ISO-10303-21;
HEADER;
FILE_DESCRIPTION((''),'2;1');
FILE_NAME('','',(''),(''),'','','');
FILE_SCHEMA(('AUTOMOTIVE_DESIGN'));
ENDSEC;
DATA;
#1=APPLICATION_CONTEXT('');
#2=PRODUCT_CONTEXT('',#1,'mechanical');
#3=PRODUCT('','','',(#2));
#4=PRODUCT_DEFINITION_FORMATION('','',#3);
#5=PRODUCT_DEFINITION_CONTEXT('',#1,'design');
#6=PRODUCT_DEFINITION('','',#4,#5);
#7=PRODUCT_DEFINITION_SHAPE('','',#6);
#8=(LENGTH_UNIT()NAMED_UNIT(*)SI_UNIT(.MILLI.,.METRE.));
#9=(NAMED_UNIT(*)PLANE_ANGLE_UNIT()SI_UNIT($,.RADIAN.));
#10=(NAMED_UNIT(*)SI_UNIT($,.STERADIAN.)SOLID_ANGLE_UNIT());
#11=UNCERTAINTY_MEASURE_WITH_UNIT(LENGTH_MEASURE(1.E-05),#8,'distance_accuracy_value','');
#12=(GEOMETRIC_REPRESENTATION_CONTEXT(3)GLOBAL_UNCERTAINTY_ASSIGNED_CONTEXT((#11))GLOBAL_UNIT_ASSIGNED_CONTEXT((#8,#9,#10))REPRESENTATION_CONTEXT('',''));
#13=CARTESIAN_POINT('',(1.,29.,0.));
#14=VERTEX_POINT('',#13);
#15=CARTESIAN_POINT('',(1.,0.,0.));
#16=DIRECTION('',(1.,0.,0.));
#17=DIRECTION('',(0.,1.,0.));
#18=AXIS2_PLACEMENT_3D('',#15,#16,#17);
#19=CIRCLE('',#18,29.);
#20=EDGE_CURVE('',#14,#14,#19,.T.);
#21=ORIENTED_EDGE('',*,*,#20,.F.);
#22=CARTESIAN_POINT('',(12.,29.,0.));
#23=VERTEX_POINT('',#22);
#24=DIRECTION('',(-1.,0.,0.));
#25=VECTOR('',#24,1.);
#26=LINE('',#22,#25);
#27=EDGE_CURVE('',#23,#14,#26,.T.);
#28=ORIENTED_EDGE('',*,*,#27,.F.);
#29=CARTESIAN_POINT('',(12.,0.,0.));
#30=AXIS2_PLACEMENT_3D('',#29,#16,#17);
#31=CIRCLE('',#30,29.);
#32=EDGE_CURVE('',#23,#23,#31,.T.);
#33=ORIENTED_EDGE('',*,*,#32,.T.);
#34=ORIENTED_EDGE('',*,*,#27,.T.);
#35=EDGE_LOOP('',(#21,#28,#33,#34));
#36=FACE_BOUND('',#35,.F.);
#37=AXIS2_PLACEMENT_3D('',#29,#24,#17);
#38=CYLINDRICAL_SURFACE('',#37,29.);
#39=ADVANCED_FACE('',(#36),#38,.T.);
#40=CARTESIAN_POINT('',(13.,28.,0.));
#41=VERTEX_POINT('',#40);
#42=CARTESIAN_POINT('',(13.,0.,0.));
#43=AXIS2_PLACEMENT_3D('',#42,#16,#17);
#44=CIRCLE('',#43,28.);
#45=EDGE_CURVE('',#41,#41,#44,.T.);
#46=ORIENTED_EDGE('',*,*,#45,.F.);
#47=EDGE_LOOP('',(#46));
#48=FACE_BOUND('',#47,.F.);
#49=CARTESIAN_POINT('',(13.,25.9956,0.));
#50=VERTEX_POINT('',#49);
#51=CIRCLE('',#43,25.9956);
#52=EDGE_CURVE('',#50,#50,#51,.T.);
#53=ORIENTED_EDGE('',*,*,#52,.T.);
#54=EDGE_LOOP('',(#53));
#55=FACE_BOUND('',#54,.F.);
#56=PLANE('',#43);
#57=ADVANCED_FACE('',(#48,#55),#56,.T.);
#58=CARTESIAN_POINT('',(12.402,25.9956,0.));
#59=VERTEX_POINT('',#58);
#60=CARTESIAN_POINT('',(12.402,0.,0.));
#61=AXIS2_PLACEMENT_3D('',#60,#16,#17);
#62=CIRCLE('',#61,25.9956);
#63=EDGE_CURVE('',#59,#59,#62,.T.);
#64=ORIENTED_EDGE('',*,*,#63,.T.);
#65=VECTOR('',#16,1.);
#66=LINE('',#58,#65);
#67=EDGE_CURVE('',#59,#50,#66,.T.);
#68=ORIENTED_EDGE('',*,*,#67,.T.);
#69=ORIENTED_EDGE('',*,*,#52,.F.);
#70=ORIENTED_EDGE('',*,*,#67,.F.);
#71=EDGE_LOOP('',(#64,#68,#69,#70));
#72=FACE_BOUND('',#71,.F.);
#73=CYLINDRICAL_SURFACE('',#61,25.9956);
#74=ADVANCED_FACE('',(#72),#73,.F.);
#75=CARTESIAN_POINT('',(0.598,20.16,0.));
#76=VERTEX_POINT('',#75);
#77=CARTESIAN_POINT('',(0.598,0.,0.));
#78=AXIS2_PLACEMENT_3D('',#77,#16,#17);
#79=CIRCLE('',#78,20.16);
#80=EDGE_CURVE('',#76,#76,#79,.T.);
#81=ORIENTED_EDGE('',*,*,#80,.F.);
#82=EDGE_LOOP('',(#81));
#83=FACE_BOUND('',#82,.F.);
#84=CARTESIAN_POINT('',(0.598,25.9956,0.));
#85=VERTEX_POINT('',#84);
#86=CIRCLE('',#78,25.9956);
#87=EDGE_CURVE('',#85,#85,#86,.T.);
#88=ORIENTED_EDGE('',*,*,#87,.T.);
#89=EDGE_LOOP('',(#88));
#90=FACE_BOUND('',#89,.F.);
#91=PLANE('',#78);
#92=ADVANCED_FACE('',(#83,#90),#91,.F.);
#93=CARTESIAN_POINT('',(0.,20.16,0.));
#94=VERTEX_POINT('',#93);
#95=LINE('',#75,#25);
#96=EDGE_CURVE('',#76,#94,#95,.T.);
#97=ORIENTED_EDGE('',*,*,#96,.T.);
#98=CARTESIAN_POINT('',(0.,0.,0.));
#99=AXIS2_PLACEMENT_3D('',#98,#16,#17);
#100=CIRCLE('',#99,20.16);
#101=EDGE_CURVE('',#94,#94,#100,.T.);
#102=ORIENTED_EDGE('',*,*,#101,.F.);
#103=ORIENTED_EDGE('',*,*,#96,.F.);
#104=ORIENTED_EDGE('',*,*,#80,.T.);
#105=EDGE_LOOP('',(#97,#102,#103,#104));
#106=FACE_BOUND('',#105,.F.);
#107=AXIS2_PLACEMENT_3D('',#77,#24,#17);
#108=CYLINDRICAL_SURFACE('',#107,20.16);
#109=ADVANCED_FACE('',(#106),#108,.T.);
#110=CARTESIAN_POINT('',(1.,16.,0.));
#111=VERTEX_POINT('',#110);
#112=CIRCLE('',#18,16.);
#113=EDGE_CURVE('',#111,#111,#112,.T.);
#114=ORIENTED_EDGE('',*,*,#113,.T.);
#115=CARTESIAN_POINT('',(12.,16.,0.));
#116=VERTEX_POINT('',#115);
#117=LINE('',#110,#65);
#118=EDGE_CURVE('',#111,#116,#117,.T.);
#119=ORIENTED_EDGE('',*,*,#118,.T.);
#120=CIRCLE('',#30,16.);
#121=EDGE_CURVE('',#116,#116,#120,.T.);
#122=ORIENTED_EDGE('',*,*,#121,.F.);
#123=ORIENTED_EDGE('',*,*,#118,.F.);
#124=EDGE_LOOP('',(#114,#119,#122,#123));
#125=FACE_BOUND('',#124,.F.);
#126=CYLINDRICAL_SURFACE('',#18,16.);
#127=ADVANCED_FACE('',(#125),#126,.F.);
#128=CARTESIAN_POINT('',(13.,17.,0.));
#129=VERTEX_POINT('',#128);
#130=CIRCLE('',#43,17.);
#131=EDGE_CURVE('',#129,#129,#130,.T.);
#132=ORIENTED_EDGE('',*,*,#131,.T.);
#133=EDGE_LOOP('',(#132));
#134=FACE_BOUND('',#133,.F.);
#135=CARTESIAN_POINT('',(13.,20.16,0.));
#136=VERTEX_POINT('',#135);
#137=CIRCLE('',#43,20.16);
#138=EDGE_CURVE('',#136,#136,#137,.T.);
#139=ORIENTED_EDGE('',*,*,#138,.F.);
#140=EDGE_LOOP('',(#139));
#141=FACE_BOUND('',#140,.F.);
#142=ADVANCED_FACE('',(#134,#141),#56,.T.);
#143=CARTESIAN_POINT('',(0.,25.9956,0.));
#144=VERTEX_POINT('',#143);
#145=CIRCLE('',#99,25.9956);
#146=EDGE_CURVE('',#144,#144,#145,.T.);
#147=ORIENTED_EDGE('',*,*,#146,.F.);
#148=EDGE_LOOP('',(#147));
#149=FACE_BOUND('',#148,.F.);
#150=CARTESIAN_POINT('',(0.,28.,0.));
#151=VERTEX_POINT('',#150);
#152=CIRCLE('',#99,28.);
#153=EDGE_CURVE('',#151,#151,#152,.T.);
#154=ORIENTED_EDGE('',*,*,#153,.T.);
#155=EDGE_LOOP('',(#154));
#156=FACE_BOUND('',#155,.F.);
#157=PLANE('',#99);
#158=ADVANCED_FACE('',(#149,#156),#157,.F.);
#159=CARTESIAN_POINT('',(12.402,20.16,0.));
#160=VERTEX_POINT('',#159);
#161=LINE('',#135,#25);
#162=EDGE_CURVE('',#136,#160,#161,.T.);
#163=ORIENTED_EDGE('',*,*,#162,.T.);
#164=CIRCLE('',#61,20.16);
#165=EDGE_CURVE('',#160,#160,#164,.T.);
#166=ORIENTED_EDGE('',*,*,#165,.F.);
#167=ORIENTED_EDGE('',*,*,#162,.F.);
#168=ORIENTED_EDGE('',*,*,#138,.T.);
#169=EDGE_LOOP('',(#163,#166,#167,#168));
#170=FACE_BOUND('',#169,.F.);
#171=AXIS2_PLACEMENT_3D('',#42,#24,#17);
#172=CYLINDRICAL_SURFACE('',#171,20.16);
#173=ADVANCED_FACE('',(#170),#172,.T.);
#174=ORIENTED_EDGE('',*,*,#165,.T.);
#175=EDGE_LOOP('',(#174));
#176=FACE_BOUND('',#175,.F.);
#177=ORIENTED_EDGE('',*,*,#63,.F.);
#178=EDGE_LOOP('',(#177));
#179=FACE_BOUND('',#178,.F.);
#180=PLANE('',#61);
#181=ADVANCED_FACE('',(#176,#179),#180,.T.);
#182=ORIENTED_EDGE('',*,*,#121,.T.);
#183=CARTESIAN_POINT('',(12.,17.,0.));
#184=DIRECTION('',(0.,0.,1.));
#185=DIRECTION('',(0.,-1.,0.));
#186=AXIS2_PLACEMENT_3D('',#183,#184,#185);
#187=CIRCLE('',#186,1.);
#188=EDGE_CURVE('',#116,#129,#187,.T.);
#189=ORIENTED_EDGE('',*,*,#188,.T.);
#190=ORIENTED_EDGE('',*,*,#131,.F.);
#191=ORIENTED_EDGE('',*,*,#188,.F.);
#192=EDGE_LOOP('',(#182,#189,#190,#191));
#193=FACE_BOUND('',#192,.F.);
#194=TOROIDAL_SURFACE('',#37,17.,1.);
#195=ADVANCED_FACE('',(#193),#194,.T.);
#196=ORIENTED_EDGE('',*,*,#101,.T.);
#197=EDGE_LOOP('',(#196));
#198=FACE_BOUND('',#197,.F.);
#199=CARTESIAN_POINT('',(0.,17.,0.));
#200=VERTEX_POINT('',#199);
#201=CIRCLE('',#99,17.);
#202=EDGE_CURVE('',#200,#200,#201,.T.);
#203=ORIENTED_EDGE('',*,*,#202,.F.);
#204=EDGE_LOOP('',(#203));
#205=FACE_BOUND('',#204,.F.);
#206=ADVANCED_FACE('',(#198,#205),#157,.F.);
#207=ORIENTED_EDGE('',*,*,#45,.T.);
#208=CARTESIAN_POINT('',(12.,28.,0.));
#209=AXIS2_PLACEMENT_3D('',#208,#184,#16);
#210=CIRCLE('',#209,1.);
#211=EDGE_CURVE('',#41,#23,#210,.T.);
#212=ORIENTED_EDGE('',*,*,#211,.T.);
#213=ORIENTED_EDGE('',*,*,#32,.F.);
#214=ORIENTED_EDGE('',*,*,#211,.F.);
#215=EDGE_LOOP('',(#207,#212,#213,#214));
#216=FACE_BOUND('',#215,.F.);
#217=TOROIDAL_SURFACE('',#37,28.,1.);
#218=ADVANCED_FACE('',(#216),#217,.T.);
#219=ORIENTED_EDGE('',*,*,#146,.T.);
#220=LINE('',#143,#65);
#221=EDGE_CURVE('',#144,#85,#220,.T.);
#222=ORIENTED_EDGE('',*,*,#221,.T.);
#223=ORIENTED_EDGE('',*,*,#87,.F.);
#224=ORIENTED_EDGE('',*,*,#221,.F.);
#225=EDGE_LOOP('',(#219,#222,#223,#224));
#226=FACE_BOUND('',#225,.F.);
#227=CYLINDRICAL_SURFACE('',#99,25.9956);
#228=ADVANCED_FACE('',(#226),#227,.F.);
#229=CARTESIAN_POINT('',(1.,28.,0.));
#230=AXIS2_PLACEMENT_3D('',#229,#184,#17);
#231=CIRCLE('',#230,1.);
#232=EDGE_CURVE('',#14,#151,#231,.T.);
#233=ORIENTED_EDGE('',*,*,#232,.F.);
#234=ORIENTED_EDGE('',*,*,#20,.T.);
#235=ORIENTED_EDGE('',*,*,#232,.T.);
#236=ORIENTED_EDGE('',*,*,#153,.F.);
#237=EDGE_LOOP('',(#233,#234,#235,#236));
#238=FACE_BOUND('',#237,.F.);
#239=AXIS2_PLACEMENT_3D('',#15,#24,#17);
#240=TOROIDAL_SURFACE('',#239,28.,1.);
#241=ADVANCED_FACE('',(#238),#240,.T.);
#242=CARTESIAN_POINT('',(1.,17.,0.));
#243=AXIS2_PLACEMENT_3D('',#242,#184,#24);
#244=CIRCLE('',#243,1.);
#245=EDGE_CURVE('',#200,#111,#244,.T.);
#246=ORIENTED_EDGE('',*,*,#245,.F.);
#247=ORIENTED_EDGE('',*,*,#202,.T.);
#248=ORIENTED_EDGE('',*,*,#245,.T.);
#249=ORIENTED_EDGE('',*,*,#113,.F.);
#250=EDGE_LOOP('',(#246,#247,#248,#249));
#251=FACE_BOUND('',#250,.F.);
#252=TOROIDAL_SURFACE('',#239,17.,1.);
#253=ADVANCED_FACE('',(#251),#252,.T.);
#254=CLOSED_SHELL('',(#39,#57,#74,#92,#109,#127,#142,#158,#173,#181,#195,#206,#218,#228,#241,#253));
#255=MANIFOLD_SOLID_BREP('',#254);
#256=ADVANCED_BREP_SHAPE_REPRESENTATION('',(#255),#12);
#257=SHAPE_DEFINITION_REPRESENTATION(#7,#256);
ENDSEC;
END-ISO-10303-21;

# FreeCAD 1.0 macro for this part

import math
import FreeCAD as App
import Part
import Sketcher

doc = App.newDocument("Part")
body = doc.addObject("PartDesign::Body", "Body")

# Sketch on XY plane
sketch1 = doc.addObject("Sketcher::SketchObject", "Sketch")
body.addObject(sketch1)
sketch1.AttachmentSupport = (doc.XY_Plane, [""])
sketch1.MapMode = "FlatFace"
sketch1.addGeometry([
    Part.LineSegment(App.Vector(0, 20.16, 0), App.Vector(0, 17, 0)),  # 0
    Part.ArcOfCircle(Part.Circle(App.Vector(1, 17, 0), App.Vector(0, 0, 1), 1), math.radians(180), math.radians(270)),  # 1
    Part.LineSegment(App.Vector(1, 16, 0), App.Vector(12, 16, 0)),  # 2
    Part.ArcOfCircle(Part.Circle(App.Vector(12, 17, 0), App.Vector(0, 0, 1), 1), math.radians(-90), math.radians(0)),  # 3
    Part.LineSegment(App.Vector(13, 17, 0), App.Vector(13, 20.16, 0)),  # 4
    Part.LineSegment(App.Vector(13, 20.16, 0), App.Vector(12.402, 20.16, 0)),  # 5
    Part.LineSegment(App.Vector(12.402, 20.16, 0), App.Vector(12.402, 25.9956, 0)),  # 6
    Part.LineSegment(App.Vector(12.402, 25.9956, 0), App.Vector(13, 25.9956, 0)),  # 7
    Part.LineSegment(App.Vector(13, 25.9956, 0), App.Vector(13, 28, 0)),  # 8
    Part.ArcOfCircle(Part.Circle(App.Vector(12, 28, 0), App.Vector(0, 0, 1), 1), math.radians(0), math.radians(90)),  # 9
    Part.LineSegment(App.Vector(12, 29, 0), App.Vector(1, 29, 0)),  # 10
    Part.ArcOfCircle(Part.Circle(App.Vector(1, 28, 0), App.Vector(0, 0, 1), 1), math.radians(90), math.radians(180)),  # 11
    Part.LineSegment(App.Vector(0, 28, 0), App.Vector(0, 25.9956, 0)),  # 12
    Part.LineSegment(App.Vector(0, 25.9956, 0), App.Vector(0.598, 25.9956, 0)),  # 13
    Part.LineSegment(App.Vector(0.598, 25.9956, 0), App.Vector(0.598, 20.16, 0)),  # 14
    Part.LineSegment(App.Vector(0.598, 20.16, 0), App.Vector(0, 20.16, 0)),  # 15
], False)
sketch1.addConstraint([
    Sketcher.Constraint("Tangent", 0, 2, 1, 1),
    Sketcher.Constraint("Tangent", 1, 2, 2, 1),
    Sketcher.Constraint("Tangent", 2, 2, 3, 1),
    Sketcher.Constraint("Tangent", 3, 2, 4, 1),
    Sketcher.Constraint("Coincident", 4, 2, 5, 1),
    Sketcher.Constraint("Coincident", 5, 2, 6, 1),
    Sketcher.Constraint("Coincident", 6, 2, 7, 1),
    Sketcher.Constraint("Coincident", 7, 2, 8, 1),
    Sketcher.Constraint("Tangent", 8, 2, 9, 1),
    Sketcher.Constraint("Tangent", 9, 2, 10, 1),
    Sketcher.Constraint("Tangent", 10, 2, 11, 1),
    Sketcher.Constraint("Tangent", 11, 2, 12, 1),
    Sketcher.Constraint("Coincident", 12, 2, 13, 1),
    Sketcher.Constraint("Coincident", 13, 2, 14, 1),
    Sketcher.Constraint("Coincident", 14, 2, 15, 1),
    Sketcher.Constraint("Coincident", 15, 2, 0, 1),
    Sketcher.Constraint("Vertical", 0),
    Sketcher.Constraint("Horizontal", 2),
    Sketcher.Constraint("Vertical", 4),
    Sketcher.Constraint("Horizontal", 5),
    Sketcher.Constraint("Vertical", 6),
    Sketcher.Constraint("Horizontal", 7),
    Sketcher.Constraint("Vertical", 8),
    Sketcher.Constraint("Horizontal", 10),
    Sketcher.Constraint("Vertical", 12),
    Sketcher.Constraint("Horizontal", 13),
    Sketcher.Constraint("Vertical", 14),
    Sketcher.Constraint("Horizontal", 15),
    Sketcher.Constraint("Equal", 1, 3),
    Sketcher.Constraint("Equal", 3, 9),
    Sketcher.Constraint("Equal", 9, 11),
    Sketcher.Constraint("PointOnObject", 0, 2, -2),
    Sketcher.Constraint("PointOnObject", 11, 2, -2),
    Sketcher.Constraint("Horizontal", 7, 2, 12, 2),
    Sketcher.Constraint("Horizontal", 5, 2, 14, 2),
    Sketcher.Constraint("Vertical", 3, 3, 9, 3),
    Sketcher.Constraint("Equal", 7, 13),
    Sketcher.Constraint("Radius", 1, 1.0),
    Sketcher.Constraint("DistanceX", 2, 1, 2, 2, 11.0),
    Sketcher.Constraint("DistanceY", -1, 1, 1, 3, 17.0),
    Sketcher.Constraint("DistanceY", -1, 1, 9, 3, 28.0),
    Sketcher.Constraint("DistanceY", 0, 2, 0, 1, 3.16),
    Sketcher.Constraint("DistanceX", 5, 2, 5, 1, 0.598),
    Sketcher.Constraint("DistanceY", 6, 1, 6, 2, 5.8356),
])
revolution = doc.addObject("PartDesign::Revolution", "Revolution")
body.addObject(revolution)
revolution.Profile = sketch1
revolution.ReferenceAxis = (sketch1, ["H_Axis"])
revolution.Angle = 360

doc.recompute()
